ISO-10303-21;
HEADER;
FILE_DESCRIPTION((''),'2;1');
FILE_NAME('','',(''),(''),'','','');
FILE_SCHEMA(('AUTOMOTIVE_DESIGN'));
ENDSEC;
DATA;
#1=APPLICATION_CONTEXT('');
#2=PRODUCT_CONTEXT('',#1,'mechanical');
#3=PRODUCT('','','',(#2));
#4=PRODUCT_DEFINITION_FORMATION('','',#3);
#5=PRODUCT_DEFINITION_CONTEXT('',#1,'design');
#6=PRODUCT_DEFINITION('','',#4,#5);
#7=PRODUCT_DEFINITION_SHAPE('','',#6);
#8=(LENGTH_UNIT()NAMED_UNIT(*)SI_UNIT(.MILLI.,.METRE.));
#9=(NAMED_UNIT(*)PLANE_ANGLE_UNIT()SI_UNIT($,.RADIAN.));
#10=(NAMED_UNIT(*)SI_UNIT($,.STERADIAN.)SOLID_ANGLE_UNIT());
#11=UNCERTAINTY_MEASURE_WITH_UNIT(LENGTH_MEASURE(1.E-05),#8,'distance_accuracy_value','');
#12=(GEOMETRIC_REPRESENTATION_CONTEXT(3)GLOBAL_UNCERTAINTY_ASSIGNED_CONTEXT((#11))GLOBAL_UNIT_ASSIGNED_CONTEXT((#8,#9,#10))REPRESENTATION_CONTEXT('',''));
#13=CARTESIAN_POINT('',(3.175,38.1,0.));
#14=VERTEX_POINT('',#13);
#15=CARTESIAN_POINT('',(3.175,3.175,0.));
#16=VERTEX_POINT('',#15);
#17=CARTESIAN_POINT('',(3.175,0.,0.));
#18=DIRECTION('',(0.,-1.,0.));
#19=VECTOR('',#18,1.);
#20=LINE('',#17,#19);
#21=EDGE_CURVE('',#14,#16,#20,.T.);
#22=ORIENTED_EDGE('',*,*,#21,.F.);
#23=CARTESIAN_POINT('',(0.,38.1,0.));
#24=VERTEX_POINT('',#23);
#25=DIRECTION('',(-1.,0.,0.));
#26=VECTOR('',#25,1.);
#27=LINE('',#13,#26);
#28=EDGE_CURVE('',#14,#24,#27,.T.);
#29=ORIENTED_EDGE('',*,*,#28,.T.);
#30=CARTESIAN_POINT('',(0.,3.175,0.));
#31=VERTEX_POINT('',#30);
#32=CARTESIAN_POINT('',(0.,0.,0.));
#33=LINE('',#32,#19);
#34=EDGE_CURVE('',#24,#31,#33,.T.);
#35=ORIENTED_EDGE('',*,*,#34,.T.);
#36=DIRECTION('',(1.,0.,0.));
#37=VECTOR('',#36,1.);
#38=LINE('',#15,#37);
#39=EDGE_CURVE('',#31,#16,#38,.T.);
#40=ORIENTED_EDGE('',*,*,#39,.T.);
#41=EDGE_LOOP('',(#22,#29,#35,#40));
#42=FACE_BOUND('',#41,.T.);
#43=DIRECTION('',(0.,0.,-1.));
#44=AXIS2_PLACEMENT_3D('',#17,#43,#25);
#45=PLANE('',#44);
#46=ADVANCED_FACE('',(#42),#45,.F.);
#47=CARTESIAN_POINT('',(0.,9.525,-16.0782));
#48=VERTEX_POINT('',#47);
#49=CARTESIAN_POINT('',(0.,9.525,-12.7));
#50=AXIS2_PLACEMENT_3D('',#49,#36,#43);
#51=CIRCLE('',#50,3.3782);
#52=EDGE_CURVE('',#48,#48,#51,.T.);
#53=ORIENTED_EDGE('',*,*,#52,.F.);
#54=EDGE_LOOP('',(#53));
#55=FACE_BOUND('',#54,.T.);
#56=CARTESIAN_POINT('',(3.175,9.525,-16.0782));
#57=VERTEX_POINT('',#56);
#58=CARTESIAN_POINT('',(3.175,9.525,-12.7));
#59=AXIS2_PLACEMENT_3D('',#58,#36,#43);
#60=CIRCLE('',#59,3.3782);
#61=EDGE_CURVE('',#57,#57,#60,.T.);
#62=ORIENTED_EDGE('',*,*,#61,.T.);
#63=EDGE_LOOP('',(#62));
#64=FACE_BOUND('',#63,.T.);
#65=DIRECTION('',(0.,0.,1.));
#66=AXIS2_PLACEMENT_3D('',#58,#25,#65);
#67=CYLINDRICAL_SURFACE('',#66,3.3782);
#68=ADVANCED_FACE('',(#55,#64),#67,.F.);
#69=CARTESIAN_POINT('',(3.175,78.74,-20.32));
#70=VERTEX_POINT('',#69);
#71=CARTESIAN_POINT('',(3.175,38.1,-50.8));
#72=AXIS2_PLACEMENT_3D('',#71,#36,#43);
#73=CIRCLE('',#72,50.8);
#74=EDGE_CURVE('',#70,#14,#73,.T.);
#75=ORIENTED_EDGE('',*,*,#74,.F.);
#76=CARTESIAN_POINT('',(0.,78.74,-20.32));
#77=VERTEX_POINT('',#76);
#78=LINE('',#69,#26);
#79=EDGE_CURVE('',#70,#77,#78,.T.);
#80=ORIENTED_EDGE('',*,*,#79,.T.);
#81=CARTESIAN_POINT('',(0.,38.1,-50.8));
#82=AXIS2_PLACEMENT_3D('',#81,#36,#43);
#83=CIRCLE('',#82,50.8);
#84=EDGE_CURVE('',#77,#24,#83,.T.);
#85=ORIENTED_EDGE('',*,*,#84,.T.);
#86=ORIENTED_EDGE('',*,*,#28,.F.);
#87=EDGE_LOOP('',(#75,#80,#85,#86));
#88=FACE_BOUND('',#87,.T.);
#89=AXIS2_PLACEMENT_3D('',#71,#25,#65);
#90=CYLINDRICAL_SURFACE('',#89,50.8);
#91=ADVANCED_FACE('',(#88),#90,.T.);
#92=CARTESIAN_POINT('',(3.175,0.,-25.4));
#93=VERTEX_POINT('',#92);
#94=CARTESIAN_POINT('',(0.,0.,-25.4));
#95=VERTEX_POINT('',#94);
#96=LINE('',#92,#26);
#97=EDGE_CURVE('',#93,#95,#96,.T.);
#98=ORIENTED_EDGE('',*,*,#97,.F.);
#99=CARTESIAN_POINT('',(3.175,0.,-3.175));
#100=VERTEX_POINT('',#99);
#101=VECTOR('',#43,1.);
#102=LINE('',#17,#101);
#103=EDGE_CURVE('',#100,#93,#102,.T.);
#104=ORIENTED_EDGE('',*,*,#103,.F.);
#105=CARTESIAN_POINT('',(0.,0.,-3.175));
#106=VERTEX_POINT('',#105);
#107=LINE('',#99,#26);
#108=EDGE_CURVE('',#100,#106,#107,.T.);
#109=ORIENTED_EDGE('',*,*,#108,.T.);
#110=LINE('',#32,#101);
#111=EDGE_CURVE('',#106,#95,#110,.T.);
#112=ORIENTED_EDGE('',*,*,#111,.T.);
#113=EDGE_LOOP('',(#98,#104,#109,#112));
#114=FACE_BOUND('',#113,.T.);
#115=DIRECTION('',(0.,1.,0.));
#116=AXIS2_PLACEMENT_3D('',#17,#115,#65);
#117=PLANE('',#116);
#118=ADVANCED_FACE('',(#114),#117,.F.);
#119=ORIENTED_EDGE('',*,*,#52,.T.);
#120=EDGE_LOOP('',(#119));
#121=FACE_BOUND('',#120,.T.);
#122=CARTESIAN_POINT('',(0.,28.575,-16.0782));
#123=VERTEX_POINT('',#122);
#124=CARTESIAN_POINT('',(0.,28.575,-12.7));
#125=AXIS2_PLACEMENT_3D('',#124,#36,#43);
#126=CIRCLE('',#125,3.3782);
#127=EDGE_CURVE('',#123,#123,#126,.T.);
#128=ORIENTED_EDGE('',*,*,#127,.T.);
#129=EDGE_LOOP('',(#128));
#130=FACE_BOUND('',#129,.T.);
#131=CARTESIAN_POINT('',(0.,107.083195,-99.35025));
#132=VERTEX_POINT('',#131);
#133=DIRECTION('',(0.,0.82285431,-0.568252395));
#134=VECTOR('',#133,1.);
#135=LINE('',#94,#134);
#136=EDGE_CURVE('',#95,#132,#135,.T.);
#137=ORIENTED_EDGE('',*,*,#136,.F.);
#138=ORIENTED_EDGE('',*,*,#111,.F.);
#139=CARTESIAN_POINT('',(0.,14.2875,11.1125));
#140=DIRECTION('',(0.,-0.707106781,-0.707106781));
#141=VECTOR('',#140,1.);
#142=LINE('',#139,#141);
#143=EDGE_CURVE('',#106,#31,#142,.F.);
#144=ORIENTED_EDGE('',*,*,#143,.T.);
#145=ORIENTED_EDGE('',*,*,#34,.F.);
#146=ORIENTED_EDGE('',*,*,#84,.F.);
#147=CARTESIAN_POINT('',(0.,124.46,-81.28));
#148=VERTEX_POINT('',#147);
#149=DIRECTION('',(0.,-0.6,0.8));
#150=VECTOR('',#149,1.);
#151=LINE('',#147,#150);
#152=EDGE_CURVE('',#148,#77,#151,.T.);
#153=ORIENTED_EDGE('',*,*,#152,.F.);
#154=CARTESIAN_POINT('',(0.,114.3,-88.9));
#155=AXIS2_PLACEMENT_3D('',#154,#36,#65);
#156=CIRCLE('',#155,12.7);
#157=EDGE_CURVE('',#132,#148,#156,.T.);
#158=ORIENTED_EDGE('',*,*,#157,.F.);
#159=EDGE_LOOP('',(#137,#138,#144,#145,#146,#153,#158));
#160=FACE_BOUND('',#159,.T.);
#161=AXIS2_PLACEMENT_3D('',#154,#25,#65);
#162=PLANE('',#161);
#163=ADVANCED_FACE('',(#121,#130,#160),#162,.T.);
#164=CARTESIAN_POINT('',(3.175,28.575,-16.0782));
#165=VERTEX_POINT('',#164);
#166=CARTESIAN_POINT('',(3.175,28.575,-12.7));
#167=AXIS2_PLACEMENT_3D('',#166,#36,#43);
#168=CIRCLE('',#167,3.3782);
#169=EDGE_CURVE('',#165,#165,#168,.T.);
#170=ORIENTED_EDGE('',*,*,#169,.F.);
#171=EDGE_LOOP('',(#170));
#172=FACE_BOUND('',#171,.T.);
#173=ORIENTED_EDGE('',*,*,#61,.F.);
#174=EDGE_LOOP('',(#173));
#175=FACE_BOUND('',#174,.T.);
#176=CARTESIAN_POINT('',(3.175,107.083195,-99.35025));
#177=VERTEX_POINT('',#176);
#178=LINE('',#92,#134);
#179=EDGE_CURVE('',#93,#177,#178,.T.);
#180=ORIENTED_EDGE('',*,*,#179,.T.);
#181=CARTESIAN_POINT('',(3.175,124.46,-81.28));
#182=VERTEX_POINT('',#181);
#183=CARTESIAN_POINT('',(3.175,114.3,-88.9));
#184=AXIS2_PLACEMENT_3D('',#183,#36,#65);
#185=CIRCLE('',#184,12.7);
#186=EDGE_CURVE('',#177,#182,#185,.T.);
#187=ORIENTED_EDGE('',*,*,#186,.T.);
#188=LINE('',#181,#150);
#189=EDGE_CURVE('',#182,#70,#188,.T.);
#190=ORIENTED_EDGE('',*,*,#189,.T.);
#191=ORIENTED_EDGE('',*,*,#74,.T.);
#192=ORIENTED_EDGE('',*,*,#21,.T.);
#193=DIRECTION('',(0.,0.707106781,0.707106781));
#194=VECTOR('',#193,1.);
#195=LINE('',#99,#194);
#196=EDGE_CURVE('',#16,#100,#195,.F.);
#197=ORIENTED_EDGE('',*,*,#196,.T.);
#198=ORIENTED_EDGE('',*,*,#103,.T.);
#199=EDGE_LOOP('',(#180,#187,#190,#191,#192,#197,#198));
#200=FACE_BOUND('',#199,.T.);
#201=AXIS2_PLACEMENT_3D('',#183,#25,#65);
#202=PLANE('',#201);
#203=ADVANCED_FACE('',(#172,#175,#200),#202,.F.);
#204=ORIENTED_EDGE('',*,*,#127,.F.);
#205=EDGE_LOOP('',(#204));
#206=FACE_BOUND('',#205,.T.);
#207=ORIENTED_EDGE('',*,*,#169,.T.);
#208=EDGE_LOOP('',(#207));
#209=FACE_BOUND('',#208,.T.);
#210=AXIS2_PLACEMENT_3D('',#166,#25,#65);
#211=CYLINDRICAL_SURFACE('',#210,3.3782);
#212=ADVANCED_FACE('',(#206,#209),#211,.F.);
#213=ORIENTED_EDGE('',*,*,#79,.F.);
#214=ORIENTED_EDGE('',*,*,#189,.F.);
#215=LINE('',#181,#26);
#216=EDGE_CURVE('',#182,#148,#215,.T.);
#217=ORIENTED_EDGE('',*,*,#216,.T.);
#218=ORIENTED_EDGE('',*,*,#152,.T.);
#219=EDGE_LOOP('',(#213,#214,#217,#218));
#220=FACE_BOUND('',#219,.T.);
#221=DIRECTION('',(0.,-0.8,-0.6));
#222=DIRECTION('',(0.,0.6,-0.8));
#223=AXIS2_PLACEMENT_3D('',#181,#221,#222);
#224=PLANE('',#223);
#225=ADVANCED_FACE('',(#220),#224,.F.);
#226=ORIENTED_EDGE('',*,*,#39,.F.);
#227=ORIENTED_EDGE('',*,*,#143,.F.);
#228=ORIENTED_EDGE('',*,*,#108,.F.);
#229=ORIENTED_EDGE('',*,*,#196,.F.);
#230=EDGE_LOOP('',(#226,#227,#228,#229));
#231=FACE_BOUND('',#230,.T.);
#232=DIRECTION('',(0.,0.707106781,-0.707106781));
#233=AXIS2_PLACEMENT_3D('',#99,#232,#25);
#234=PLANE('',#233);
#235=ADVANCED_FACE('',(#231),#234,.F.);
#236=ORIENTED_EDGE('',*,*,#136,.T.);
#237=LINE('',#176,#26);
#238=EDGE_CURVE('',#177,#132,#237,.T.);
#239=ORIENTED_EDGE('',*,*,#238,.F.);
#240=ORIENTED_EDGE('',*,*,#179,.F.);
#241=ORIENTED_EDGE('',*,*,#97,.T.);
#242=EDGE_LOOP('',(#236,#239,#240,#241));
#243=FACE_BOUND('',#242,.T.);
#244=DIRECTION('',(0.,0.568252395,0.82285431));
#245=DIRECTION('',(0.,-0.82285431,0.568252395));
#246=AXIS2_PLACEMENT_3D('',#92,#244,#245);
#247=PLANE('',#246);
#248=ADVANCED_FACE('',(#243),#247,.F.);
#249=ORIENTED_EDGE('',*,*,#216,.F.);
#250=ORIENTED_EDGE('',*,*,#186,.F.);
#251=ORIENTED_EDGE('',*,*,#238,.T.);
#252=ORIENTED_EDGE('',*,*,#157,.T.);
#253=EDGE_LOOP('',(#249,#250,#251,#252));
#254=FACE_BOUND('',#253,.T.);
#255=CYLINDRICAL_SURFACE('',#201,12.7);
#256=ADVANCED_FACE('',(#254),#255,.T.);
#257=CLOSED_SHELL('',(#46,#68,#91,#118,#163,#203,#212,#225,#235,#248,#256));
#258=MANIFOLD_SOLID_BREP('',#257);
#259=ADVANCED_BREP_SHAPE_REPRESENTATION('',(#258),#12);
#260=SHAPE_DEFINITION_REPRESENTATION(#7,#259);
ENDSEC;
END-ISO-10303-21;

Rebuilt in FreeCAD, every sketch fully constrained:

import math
import FreeCAD as App
import Part
import Sketcher
from FreeCAD import Vector
Q = App.Units.Quantity


def edges_at(feature, points):
    """Names of the edges that pass closest to the given points."""
    edges = feature.Shape.Edges
    near = lambda p: min(range(len(edges)), key=lambda i: edges[i].distToShape(Part.Vertex(*p))[0])
    return sorted({f"Edge{near(p) + 1}" for p in points})

doc = App.newDocument("Part")
body = doc.addObject("PartDesign::Body", "Body")

sketch1 = body.newObject("Sketcher::SketchObject", "Sketch")
sketch1.AttachmentSupport = (doc.getObject("YZ_Plane"), [""])
sketch1.MapMode = "FlatFace"
sketch1.addGeometry(Part.LineSegment(Vector(38.1, 0, 0), Vector(0, 0, 0)), False)
sketch1.addGeometry(Part.LineSegment(Vector(0, 0, 0), Vector(0, -25.4, 0)), False)
sketch1.addGeometry(Part.LineSegment(Vector(0, -25.4, 0), Vector(107.083195, -99.35025, 0)), False)
sketch1.addGeometry(Part.ArcOfCircle(Part.Circle(Vector(114.3, -88.9, 0), Vector(0, 0, 1), 12.7), math.radians(-124.62845), math.radians(36.869898)), False)
sketch1.addGeometry(Part.LineSegment(Vector(124.46, -81.28, 0), Vector(78.74, -20.32, 0)), False)
sketch1.addGeometry(Part.ArcOfCircle(Part.Circle(Vector(38.1, -50.8, 0), Vector(0, 0, 1), 50.8), math.radians(36.869898), math.radians(90)), False)
sketch1.addGeometry(Part.Circle(Vector(9.525, -12.7, 0), Vector(0, 0, 1), 3.3782), False)
sketch1.addGeometry(Part.Circle(Vector(28.575, -12.7, 0), Vector(0, 0, 1), 3.3782), False)
sketch1.addConstraint(Sketcher.Constraint("Coincident", 0, 2, 1, 1))
sketch1.addConstraint(Sketcher.Constraint("Coincident", 1, 2, 2, 1))
sketch1.addConstraint(Sketcher.Constraint("Tangent", 2, 2, 3, 1))
sketch1.addConstraint(Sketcher.Constraint("Tangent", 3, 2, 4, 1))
sketch1.addConstraint(Sketcher.Constraint("Tangent", 4, 2, 5, 1))
sketch1.addConstraint(Sketcher.Constraint("Tangent", 5, 2, 0, 1))
sketch1.addConstraint(Sketcher.Constraint("Horizontal", 0))
sketch1.addConstraint(Sketcher.Constraint("Vertical", 1))
sketch1.addConstraint(Sketcher.Constraint("Coincident", 0, 2, -1, 1))
sketch1.addConstraint(Sketcher.Constraint("Equal", 6, 7))
sketch1.addConstraint(Sketcher.Constraint("Horizontal", 6, 3, 7, 3))
sketch1.addConstraint(Sketcher.Constraint("Radius", 5, Q("2 in")))
sketch1.addConstraint(Sketcher.Constraint("Radius", 3, Q("0.5 in")))
sketch1.addConstraint(Sketcher.Constraint("DistanceY", 1, 2, 1, 1, Q("1 in")))
sketch1.addConstraint(Sketcher.Constraint("Distance", 4, Q("3 in")))
sketch1.addConstraint(Sketcher.Constraint("Diameter", 6, Q("0.266 in")))
sketch1.addConstraint(Sketcher.Constraint("DistanceX", 0, 2, 0, 1, Q("1.5 in")))
sketch1.addConstraint(Sketcher.Constraint("DistanceX", 5, 3, 3, 3, Q("3 in")))
sketch1.addConstraint(Sketcher.Constraint("DistanceY", 3, 3, 6, 3, Q("3 in")))
sketch1.addConstraint(Sketcher.Constraint("DistanceX", 6, 3, 7, 3, Q("0.75 in")))
sketch1.addConstraint(Sketcher.Constraint("DistanceX", -1, 1, 6, 3, Q("0.375 in")))
pad1 = body.newObject("PartDesign::Pad", "Pad")
pad1.Profile = sketch1
pad1.Length = Q("0.125 in")
doc.recompute()

chamfer = body.newObject("PartDesign::Chamfer", "Chamfer")
chamfer.Base = (pad1, edges_at(pad1, [(1.587, 0, 0)]))
chamfer.Size = Q("0.125 in")

doc.recompute()
